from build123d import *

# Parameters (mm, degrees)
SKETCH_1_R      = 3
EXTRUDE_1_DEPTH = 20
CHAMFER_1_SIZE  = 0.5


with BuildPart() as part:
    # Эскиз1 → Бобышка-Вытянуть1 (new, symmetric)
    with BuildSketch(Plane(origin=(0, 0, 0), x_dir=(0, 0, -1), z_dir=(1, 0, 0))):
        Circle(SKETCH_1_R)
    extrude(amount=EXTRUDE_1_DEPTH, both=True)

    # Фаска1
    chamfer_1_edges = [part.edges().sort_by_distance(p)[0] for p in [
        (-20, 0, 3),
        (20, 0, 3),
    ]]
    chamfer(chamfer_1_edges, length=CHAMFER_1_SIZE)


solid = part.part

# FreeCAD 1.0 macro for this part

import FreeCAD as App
import Part
import Sketcher
from FreeCAD import Vector


def edges_at(feature, points):
    """Names of the edges that pass closest to the given points."""
    edges = feature.Shape.Edges
    near = lambda p: min(range(len(edges)), key=lambda i: edges[i].distToShape(Part.Vertex(*p))[0])
    return sorted({f"Edge{near(p) + 1}" for p in points})

doc = App.newDocument("Part")
body = doc.addObject("PartDesign::Body", "Body")

sketch1 = body.newObject("Sketcher::SketchObject", "Sketch")
sketch1.AttachmentSupport = (doc.getObject("YZ_Plane"), [""])
sketch1.MapMode = "FlatFace"
sketch1.addGeometry(Part.Circle(Vector(0, 0, 0), Vector(0, 0, 1), 3), False)
sketch1.addConstraint([
    Sketcher.Constraint("Coincident", 0, 3, -1, 1),
    Sketcher.Constraint("Diameter", 0, 6.0),
])
pad1 = body.newObject("PartDesign::Pad", "Pad")
pad1.Profile = sketch1
pad1.Length = 40
pad1.Midplane = True
doc.recompute()

chamfer = body.newObject("PartDesign::Chamfer", "Chamfer")
chamfer.Base = (pad1, edges_at(pad1, [(-20, 0, 3), (20, 0, 3)]))
chamfer.Size = 0.5

doc.recompute()
